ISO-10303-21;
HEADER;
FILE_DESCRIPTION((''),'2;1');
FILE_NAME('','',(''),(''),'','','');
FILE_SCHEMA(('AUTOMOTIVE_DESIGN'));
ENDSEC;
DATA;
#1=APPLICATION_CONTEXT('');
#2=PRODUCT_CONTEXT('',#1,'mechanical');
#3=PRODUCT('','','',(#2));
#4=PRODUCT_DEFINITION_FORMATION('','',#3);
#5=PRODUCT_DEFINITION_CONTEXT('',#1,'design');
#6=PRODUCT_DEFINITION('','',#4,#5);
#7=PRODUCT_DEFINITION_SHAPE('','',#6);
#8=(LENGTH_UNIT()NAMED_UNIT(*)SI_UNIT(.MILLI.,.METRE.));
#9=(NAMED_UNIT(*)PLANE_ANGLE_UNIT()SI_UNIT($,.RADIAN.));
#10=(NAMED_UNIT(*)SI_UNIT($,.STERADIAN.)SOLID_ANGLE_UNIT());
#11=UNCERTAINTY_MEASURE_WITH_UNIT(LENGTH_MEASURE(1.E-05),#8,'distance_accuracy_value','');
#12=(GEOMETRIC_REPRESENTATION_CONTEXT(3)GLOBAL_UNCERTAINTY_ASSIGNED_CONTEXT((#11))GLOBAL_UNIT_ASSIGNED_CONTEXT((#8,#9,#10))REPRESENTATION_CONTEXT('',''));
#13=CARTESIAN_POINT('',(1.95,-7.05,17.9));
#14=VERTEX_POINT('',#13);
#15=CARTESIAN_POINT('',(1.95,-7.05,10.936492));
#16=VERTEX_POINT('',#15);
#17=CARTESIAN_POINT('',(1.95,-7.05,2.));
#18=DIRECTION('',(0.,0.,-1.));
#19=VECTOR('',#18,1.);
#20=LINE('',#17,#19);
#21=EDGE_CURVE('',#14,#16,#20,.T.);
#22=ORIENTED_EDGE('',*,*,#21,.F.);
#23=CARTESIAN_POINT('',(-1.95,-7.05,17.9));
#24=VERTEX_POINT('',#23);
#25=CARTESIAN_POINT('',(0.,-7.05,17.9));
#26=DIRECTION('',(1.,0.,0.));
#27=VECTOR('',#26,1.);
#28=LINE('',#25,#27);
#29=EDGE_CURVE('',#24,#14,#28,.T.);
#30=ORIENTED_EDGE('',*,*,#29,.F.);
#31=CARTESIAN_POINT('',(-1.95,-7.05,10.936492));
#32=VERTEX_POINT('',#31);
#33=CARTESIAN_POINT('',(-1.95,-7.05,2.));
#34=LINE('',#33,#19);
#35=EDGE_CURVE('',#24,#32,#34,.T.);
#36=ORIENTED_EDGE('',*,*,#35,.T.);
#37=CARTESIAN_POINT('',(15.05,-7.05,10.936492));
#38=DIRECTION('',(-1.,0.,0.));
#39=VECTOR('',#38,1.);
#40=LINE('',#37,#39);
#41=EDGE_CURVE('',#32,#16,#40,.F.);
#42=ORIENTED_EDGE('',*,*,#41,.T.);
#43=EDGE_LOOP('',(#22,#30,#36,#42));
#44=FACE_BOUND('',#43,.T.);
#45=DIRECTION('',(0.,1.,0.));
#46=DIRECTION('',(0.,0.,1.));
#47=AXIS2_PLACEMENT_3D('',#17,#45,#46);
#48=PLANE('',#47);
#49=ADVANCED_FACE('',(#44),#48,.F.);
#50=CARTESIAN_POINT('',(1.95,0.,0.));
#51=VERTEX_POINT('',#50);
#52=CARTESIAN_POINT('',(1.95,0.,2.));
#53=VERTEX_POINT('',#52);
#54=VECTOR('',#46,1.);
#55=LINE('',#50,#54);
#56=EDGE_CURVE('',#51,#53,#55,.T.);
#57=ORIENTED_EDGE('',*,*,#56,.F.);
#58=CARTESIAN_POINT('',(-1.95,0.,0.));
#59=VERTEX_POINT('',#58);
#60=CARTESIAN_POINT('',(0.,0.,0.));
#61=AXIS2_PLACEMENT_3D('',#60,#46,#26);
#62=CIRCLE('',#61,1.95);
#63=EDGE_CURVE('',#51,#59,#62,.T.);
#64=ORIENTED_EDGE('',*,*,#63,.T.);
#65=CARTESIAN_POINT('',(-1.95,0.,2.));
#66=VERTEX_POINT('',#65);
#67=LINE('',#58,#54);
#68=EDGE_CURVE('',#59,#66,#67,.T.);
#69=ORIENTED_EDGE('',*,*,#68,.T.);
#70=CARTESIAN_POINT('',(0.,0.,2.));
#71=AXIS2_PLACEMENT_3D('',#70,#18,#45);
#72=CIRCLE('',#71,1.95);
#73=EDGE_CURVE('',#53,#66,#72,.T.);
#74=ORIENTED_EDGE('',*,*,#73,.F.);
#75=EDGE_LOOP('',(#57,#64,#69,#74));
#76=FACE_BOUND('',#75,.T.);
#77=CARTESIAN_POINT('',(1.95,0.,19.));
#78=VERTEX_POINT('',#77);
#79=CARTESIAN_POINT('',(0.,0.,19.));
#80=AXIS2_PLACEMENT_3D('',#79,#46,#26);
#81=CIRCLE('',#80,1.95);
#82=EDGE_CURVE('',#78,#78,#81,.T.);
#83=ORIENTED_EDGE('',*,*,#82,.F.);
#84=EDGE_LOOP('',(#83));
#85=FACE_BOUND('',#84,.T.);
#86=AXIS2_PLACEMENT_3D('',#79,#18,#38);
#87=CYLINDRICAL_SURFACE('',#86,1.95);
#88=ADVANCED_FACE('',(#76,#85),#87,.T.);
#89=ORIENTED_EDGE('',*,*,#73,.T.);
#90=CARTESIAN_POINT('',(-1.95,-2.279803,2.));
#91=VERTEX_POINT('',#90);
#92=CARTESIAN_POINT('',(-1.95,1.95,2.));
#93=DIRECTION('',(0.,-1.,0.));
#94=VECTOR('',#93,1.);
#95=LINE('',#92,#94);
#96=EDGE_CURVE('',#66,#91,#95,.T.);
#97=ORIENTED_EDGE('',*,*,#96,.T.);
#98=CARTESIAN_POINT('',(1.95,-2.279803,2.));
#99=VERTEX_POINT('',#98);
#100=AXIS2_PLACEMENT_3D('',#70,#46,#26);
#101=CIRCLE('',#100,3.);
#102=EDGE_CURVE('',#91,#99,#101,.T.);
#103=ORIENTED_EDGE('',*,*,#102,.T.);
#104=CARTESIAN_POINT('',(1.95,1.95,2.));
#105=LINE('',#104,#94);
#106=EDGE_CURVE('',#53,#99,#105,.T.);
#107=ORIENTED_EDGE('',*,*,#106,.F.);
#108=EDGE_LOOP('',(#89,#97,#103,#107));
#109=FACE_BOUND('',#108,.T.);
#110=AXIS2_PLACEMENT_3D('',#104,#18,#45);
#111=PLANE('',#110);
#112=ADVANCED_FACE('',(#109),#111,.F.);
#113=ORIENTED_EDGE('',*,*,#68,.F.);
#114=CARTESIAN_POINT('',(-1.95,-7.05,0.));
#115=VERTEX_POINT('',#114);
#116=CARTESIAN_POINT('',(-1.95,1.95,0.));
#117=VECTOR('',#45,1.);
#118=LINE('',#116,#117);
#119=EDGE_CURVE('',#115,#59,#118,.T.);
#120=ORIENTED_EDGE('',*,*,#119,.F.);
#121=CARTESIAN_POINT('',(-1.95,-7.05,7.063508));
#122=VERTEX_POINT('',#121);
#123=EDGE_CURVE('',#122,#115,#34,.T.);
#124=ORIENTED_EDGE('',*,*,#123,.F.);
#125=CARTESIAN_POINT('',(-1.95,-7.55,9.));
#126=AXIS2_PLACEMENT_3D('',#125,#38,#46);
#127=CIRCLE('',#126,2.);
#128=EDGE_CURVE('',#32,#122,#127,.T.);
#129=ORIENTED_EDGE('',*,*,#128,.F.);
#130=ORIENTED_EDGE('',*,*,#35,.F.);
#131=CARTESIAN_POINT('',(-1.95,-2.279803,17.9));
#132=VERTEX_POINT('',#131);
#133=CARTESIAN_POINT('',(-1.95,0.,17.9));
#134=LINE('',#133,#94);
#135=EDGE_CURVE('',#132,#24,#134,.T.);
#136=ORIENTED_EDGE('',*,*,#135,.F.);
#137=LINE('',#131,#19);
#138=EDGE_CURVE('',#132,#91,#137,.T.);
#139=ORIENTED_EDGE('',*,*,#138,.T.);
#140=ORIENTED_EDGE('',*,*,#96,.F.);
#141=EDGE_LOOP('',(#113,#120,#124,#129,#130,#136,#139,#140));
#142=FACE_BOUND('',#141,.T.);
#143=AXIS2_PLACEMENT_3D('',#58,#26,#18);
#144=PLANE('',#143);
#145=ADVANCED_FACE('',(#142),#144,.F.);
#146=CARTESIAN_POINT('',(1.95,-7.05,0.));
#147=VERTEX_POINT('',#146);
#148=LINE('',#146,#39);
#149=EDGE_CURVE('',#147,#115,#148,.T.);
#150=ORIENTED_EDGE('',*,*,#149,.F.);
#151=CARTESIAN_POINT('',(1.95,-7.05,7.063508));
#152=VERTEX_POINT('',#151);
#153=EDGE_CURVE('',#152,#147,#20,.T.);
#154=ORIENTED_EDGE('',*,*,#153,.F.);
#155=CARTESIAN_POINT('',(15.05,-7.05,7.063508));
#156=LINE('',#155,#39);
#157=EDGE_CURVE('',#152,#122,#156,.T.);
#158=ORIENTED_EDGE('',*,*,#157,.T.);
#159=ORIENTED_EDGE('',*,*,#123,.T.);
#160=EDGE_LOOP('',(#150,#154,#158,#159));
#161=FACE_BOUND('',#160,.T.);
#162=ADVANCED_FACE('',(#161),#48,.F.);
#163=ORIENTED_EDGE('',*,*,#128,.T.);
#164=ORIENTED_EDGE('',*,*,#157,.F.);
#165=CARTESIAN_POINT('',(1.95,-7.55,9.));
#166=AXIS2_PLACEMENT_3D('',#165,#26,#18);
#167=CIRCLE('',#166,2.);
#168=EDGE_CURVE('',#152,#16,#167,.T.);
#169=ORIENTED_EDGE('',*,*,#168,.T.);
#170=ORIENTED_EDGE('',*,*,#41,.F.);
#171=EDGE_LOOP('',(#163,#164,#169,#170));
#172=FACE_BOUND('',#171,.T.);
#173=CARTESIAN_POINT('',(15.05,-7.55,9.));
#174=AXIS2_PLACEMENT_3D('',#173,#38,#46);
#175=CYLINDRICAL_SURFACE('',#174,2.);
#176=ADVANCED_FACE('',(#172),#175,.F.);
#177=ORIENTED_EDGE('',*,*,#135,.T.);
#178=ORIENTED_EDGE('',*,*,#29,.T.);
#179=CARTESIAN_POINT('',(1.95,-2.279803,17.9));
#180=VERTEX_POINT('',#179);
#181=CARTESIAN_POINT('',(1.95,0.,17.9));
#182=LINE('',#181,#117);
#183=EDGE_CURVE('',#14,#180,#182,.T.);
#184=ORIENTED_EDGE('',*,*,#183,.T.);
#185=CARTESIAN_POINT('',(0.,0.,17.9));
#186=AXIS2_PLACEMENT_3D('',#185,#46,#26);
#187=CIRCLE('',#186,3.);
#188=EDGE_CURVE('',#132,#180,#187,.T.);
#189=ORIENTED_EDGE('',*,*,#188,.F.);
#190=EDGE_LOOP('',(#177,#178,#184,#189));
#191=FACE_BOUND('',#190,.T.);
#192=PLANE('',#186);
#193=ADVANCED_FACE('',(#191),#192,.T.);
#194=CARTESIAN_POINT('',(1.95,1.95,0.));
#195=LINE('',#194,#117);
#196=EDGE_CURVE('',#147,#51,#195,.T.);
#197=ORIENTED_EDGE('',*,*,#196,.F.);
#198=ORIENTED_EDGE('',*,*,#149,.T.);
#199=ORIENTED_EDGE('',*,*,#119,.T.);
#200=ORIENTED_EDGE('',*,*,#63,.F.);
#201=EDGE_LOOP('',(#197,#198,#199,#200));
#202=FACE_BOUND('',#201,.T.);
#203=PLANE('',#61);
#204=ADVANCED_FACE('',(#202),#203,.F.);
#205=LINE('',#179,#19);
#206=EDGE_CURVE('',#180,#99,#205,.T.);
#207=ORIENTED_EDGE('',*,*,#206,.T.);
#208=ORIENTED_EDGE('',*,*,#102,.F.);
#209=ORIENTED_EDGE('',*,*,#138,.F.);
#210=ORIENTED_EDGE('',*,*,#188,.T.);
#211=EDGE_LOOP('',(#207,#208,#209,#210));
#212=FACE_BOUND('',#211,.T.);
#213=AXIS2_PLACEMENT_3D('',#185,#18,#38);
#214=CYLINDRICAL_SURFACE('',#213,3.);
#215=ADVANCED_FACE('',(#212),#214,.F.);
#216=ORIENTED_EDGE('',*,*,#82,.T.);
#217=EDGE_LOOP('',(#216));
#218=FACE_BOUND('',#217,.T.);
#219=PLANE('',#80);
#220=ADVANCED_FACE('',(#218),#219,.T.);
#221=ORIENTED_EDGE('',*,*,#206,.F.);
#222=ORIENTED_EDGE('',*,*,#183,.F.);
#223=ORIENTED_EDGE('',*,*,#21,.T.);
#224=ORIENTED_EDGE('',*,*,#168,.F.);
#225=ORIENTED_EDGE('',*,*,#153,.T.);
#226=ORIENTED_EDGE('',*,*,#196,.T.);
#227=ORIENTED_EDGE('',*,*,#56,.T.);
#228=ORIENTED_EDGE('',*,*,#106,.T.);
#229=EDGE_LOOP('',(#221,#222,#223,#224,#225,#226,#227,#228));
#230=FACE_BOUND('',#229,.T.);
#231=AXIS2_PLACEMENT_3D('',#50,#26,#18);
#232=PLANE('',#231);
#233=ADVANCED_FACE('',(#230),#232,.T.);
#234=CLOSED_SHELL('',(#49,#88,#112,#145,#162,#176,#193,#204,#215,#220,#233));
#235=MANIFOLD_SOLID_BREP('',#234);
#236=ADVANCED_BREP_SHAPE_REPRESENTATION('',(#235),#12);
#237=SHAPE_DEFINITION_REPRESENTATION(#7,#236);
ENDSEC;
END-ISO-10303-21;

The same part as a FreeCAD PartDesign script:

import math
import FreeCAD as App
import Part
import Sketcher

V = App.Vector

doc = App.newDocument("Part")
params = doc.addObject("Spreadsheet::Sheet", "Params")
for row, (alias, value) in enumerate([
    ("sketch1_diameter", "3.9 mm"),
    ("pad1_length", "19 mm"),
    ("sketch2_width", "9 mm"),
    ("sketch2_height", "2 mm"),
    ("pad2_length", "3.9 mm"),
    ("sketch3_radius", "1.950001 mm"),
    ("sketch4_radius", "3.000001 mm"),
    ("sketch4_width", "3.9 mm"),
    ("pad3_length", "15.9 mm"),
    ("sketch5_diameter", "4 mm"),
    ("pocket2_length", "17 mm"),
], start=1):
    params.set(f"A{row}", alias)
    params.set(f"B{row}", "=" + value)
    params.setAlias(f"B{row}", alias)

body = doc.addObject("PartDesign::Body", "Body")

# Sketch on XY plane
sketch1 = body.newObject("Sketcher::SketchObject", "Sketch")
sketch1.AttachmentSupport = (doc.getObject("XY_Plane"), [""])
sketch1.MapMode = "FlatFace"
sketch1.addGeometry(Part.Circle(V(0, 0, 0), V(0, 0, 1), 1.9), False)
sketch1.addConstraint(Sketcher.Constraint("Coincident", 0, 3, -1, 1))
sketch1.addConstraint(Sketcher.Constraint("Diameter", 0, 3.9))
sketch1.setExpression("Constraints[1]", "Params.sketch1_diameter")
pad1 = body.newObject("PartDesign::Pad", "Pad")
pad1.Profile = sketch1
pad1.setExpression("Length", "Params.pad1_length")

# Sketch on YZ plane
sketch2 = body.newObject("Sketcher::SketchObject", "Sketch001")
sketch2.AttachmentSupport = (doc.getObject("YZ_Plane"), [""])
sketch2.MapMode = "FlatFace"
sketch2.addGeometry(Part.LineSegment(V(1.9, 2, 0), V(-7, 2, 0)), False)
sketch2.addGeometry(Part.LineSegment(V(-7, 2, 0), V(-7, 0, 0)), False)
sketch2.addGeometry(Part.LineSegment(V(-7, 0, 0), V(1.9, 0, 0)), False)
sketch2.addGeometry(Part.LineSegment(V(1.9, 0, 0), V(1.9, 2, 0)), False)
sketch2.addConstraint(Sketcher.Constraint("Coincident", 0, 2, 1, 1))
sketch2.addConstraint(Sketcher.Constraint("Coincident", 1, 2, 2, 1))
sketch2.addConstraint(Sketcher.Constraint("Coincident", 2, 2, 3, 1))
sketch2.addConstraint(Sketcher.Constraint("Coincident", 3, 2, 0, 1))
sketch2.addConstraint(Sketcher.Constraint("Horizontal", 0))
sketch2.addConstraint(Sketcher.Constraint("Vertical", 1))
sketch2.addConstraint(Sketcher.Constraint("Horizontal", 2))
sketch2.addConstraint(Sketcher.Constraint("Vertical", 3))
sketch2.addConstraint(Sketcher.Constraint("PointOnObject", 1, 2, -1))
sketch2.addConstraint(Sketcher.Constraint("DistanceX", 0, 2, 0, 1, 9.0))
sketch2.addConstraint(Sketcher.Constraint("DistanceY", 1, 2, 1, 1, 2.0))
sketch2.addConstraint(Sketcher.Constraint("DistanceX", 0, 2, -1, 1, 7.05))
sketch2.setExpression("Constraints[9]", "Params.sketch2_width")
sketch2.setExpression("Constraints[10]", "Params.sketch2_height")
pad2 = body.newObject("PartDesign::Pad", "Pad001")
pad2.Profile = sketch2
pad2.setExpression("Length", "Params.pad2_length")
pad2.Midplane = True

# Sketch on XY plane
sketch3 = body.newObject("Sketcher::SketchObject", "Sketch002")
sketch3.AttachmentSupport = (doc.getObject("XY_Plane"), [""])
sketch3.MapMode = "FlatFace"
sketch3.AttachmentOffset = App.Placement(V(0, 0, 19), App.Rotation())
sketch3.addGeometry(Part.LineSegment(V(-1.9, 1.9, 0), V(-1.9, 0, 0)), False)
sketch3.addGeometry(Part.ArcOfCircle(Part.Circle(V(0, 0, 0), V(0, 0, 1), 2), math.radians(90), math.radians(180)), False)
sketch3.addGeometry(Part.LineSegment(V(0, 1.9, 0), V(-1.9, 1.9, 0)), False)
sketch3.addGeometry(Part.ArcOfCircle(Part.Circle(V(0, 0, 0), V(0, 0, 1), 2), math.radians(0), math.radians(90)), False)
sketch3.addGeometry(Part.LineSegment(V(1.9, 0, 0), V(1.9, 1.9, 0)), False)
sketch3.addGeometry(Part.LineSegment(V(1.9, 1.9, 0), V(0, 1.9, 0)), False)
sketch3.addConstraint(Sketcher.Constraint("Tangent", 0, 2, 1, 2))
sketch3.addConstraint(Sketcher.Constraint("Tangent", 1, 1, 2, 1))
sketch3.addConstraint(Sketcher.Constraint("Coincident", 2, 2, 0, 1))
sketch3.addConstraint(Sketcher.Constraint("Tangent", 3, 1, 4, 1))
sketch3.addConstraint(Sketcher.Constraint("Coincident", 4, 2, 5, 1))
sketch3.addConstraint(Sketcher.Constraint("Tangent", 5, 2, 3, 2))
sketch3.addConstraint(Sketcher.Constraint("Vertical", 0))
sketch3.addConstraint(Sketcher.Constraint("Horizontal", 2))
sketch3.addConstraint(Sketcher.Constraint("Vertical", 4))
sketch3.addConstraint(Sketcher.Constraint("Horizontal", 5))
sketch3.addConstraint(Sketcher.Constraint("Coincident", 1, 3, -1, 1))
sketch3.addConstraint(Sketcher.Constraint("Coincident", 3, 3, -1, 1))
sketch3.addConstraint(Sketcher.Constraint("Equal", 1, 3))
sketch3.addConstraint(Sketcher.Constraint("Radius", 1, 1.950001))
sketch3.setExpression("Constraints[13]", "Params.sketch3_radius")
pocket1 = body.newObject("PartDesign::Pocket", "Pocket")
pocket1.Profile = sketch3
pocket1.Type = "ThroughAll"

# Sketch on XY plane
sketch4 = body.newObject("Sketcher::SketchObject", "Sketch003")
sketch4.AttachmentSupport = (doc.getObject("XY_Plane"), [""])
sketch4.MapMode = "FlatFace"
sketch4.AttachmentOffset = App.Placement(V(0, 0, 2), App.Rotation())
sketch4.addGeometry(Part.ArcOfCircle(Part.Circle(V(0, 0, 0), V(0, 0, 1), 3), math.radians(-131), math.radians(-49)), False)
sketch4.addGeometry(Part.LineSegment(V(-1.9, -2.3, 0), V(-1.9, -7, 0)), False)
sketch4.addGeometry(Part.LineSegment(V(-1.9, -7, 0), V(1.9, -7, 0)), False)
sketch4.addGeometry(Part.LineSegment(V(1.9, -7, 0), V(1.9, -2.3, 0)), False)
sketch4.addConstraint(Sketcher.Constraint("Coincident", 0, 1, 1, 1))
sketch4.addConstraint(Sketcher.Constraint("Coincident", 1, 2, 2, 1))
sketch4.addConstraint(Sketcher.Constraint("Coincident", 2, 2, 3, 1))
sketch4.addConstraint(Sketcher.Constraint("Coincident", 3, 2, 0, 2))
sketch4.addConstraint(Sketcher.Constraint("Vertical", 1))
sketch4.addConstraint(Sketcher.Constraint("Horizontal", 2))
sketch4.addConstraint(Sketcher.Constraint("Vertical", 3))
sketch4.addConstraint(Sketcher.Constraint("Coincident", 0, 3, -1, 1))
sketch4.addConstraint(Sketcher.Constraint("Horizontal", 0, 1, 3, 2))
sketch4.addConstraint(Sketcher.Constraint("Radius", 0, 3.000001))
sketch4.addConstraint(Sketcher.Constraint("DistanceX", 2, 1, 2, 2, 3.9))
sketch4.addConstraint(Sketcher.Constraint("DistanceY", 1, 2, -1, 1, 7.05))
sketch4.setExpression("Constraints[9]", "Params.sketch4_radius")
sketch4.setExpression("Constraints[10]", "Params.sketch4_width")
pad3 = body.newObject("PartDesign::Pad", "Pad002")
pad3.Profile = sketch4
pad3.setExpression("Length", "Params.pad3_length")

# Sketch on YZ plane
sketch5 = body.newObject("Sketcher::SketchObject", "Sketch004")
sketch5.AttachmentSupport = (doc.getObject("YZ_Plane"), [""])
sketch5.MapMode = "FlatFace"
sketch5.AttachmentOffset = App.Placement(V(0, 0, -1.95), App.Rotation())
sketch5.addGeometry(Part.Circle(V(-7.5, 9, 0), V(0, 0, 1), 2), False)
sketch5.addConstraint(Sketcher.Constraint("Diameter", 0, 4.0))
sketch5.addConstraint(Sketcher.Constraint("DistanceY", -1, 1, 0, 3, 9.0))
sketch5.addConstraint(Sketcher.Constraint("DistanceX", 0, 3, -1, 1, 7.55))
sketch5.setExpression("Constraints[0]", "Params.sketch5_diameter")
pocket2 = body.newObject("PartDesign::Pocket", "Pocket001")
pocket2.Profile = sketch5
pocket2.setExpression("Length", "Params.pocket2_length")
pocket2.Reversed = True

doc.recompute()
